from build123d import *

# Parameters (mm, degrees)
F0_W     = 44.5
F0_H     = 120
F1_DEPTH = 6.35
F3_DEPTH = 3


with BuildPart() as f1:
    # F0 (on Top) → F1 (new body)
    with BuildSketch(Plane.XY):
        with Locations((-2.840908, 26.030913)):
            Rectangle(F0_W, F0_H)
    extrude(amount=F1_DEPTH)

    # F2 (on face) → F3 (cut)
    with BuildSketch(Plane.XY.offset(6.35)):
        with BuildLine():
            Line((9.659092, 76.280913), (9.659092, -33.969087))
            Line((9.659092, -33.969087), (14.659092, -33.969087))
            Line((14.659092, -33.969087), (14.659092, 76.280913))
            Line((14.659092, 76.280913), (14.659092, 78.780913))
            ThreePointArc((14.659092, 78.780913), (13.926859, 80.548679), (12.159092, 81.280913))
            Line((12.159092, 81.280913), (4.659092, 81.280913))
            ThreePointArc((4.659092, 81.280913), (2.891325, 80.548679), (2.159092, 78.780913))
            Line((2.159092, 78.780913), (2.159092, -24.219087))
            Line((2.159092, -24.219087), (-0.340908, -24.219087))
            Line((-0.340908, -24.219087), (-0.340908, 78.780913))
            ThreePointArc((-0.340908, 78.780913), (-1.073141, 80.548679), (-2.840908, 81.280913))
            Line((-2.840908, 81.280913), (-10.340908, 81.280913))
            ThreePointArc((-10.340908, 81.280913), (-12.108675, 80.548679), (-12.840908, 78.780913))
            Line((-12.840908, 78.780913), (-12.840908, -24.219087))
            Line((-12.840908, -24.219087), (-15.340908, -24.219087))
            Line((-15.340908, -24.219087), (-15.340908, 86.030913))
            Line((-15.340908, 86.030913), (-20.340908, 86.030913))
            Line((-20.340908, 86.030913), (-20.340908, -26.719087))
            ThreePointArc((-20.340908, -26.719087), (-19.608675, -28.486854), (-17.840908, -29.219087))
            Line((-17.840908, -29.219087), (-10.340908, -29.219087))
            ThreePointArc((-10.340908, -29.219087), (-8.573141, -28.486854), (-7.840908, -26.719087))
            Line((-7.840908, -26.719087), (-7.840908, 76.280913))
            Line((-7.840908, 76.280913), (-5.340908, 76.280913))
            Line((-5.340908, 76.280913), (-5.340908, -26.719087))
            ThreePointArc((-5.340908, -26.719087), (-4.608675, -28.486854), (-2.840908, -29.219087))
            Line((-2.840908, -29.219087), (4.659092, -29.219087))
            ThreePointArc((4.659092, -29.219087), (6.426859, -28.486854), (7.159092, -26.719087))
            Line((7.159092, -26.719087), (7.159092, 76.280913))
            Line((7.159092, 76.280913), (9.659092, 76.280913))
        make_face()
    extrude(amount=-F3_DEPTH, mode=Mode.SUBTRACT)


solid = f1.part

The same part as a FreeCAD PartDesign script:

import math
import FreeCAD as App
import Part
import Sketcher
from FreeCAD import Vector
Q = App.Units.Quantity


def add_polygon(sketch, points):
    """Adds a closed chain of lines whose ends are joined by coincident constraints."""
    first, n = sketch.GeometryCount, len(points)
    for a, b in zip(points, points[1:] + points[:1]):
        sketch.addGeometry(Part.LineSegment(App.Vector(*a, 0), App.Vector(*b, 0)), False)
    for i in range(n):
        sketch.addConstraint(Sketcher.Constraint("Coincident", first + i, 2, first + (i + 1) % n, 1))

doc = App.newDocument("Part")
body = doc.addObject("PartDesign::Body", "Body")

sketch1 = doc.addObject("Sketcher::SketchObject", "Sketch")
body.addObject(sketch1)
sketch1.AttachmentSupport = (doc.XY_Plane, [""])
sketch1.MapMode = "FlatFace"
add_polygon(sketch1, [(-25.090908, 86.030913), (-25.090908, -33.969087), (19.409092, -33.969087), (19.409092, 86.030913)])
sketch1.addConstraint([
    Sketcher.Constraint("Vertical", 0),
    Sketcher.Constraint("Horizontal", 1),
    Sketcher.Constraint("Vertical", 2),
    Sketcher.Constraint("Horizontal", 3),
    Sketcher.Constraint("DistanceY", 0, 2, 0, 1, Q("120 mm")),
    Sketcher.Constraint("DistanceX", 1, 1, 1, 2, Q("44.5 mm")),
    Sketcher.Constraint("DistanceX", 0, 2, -1, 1, Q("25.090908 mm")),
    Sketcher.Constraint("DistanceY", 0, 2, -1, 1, Q("33.969087 mm")),
])
pad1 = doc.addObject("PartDesign::Pad", "Pad")
body.addObject(pad1)
pad1.Profile = sketch1
pad1.Length = 6.35

sketch2 = doc.addObject("Sketcher::SketchObject", "Sketch001")
body.addObject(sketch2)
sketch2.AttachmentSupport = (doc.XY_Plane, [""])
sketch2.MapMode = "FlatFace"
sketch2.AttachmentOffset = App.Placement(Vector(0, 0, 6.35), App.Rotation())
sketch2.addGeometry([
    Part.LineSegment(Vector(9.659092, 76.280913, 0), Vector(9.659092, -33.969087, 0)),
    Part.LineSegment(Vector(9.659092, -33.969087, 0), Vector(14.659092, -33.969087, 0)),
    Part.LineSegment(Vector(14.659092, -33.969087, 0), Vector(14.659092, 78.780913, 0)),
    Part.ArcOfCircle(Part.Circle(Vector(12.15909, 78.780911, 0), Vector(0, 0, 1), 2.500002), math.radians(0.000035), math.radians(89.999965)),
    Part.LineSegment(Vector(12.159092, 81.280913, 0), Vector(4.659092, 81.280913, 0)),
    Part.ArcOfCircle(Part.Circle(Vector(4.659094, 78.780911, 0), Vector(0, 0, 1), 2.500002), math.radians(90.000035), math.radians(179.999965)),
    Part.LineSegment(Vector(2.159092, 78.780913, 0), Vector(2.159092, -24.219087, 0)),
    Part.LineSegment(Vector(2.159092, -24.219087, 0), Vector(-0.340908, -24.219087, 0)),
    Part.LineSegment(Vector(-0.340908, -24.219087, 0), Vector(-0.340908, 78.780913, 0)),
    Part.ArcOfCircle(Part.Circle(Vector(-2.84091, 78.780911, 0), Vector(0, 0, 1), 2.500002), math.radians(0.000035), math.radians(89.999965)),
    Part.LineSegment(Vector(-2.840908, 81.280913, 0), Vector(-10.340908, 81.280913, 0)),
    Part.ArcOfCircle(Part.Circle(Vector(-10.340906, 78.780911, 0), Vector(0, 0, 1), 2.500002), math.radians(90.000035), math.radians(179.999965)),
    Part.LineSegment(Vector(-12.840908, 78.780913, 0), Vector(-12.840908, -24.219087, 0)),
    Part.LineSegment(Vector(-12.840908, -24.219087, 0), Vector(-15.340908, -24.219087, 0)),
    Part.LineSegment(Vector(-15.340908, -24.219087, 0), Vector(-15.340908, 86.030913, 0)),
    Part.LineSegment(Vector(-15.340908, 86.030913, 0), Vector(-20.340908, 86.030913, 0)),
    Part.LineSegment(Vector(-20.340908, 86.030913, 0), Vector(-20.340908, -26.719087, 0)),
    Part.ArcOfCircle(Part.Circle(Vector(-17.840908, -26.719087, 0), Vector(0, 0, 1), 2.5), math.radians(179.999996), math.radians(270.000004)),
    Part.LineSegment(Vector(-17.840908, -29.219087, 0), Vector(-10.340908, -29.219087, 0)),
    Part.ArcOfCircle(Part.Circle(Vector(-10.340908, -26.719087, 0), Vector(0, 0, 1), 2.5), math.radians(-90.000004), math.radians(0.000004)),
    Part.LineSegment(Vector(-7.840908, -26.719087, 0), Vector(-7.840908, 76.280913, 0)),
    Part.LineSegment(Vector(-7.840908, 76.280913, 0), Vector(-5.340908, 76.280913, 0)),
    Part.LineSegment(Vector(-5.340908, 76.280913, 0), Vector(-5.340908, -26.719087, 0)),
    Part.ArcOfCircle(Part.Circle(Vector(-2.840908, -26.719087, 0), Vector(0, 0, 1), 2.5), math.radians(179.999996), math.radians(270.000004)),
    Part.LineSegment(Vector(-2.840908, -29.219087, 0), Vector(4.659092, -29.219087, 0)),
    Part.ArcOfCircle(Part.Circle(Vector(4.659092, -26.719087, 0), Vector(0, 0, 1), 2.5), math.radians(-90.000004), math.radians(0.000004)),
    Part.LineSegment(Vector(7.159092, -26.719087, 0), Vector(7.159092, 76.280913, 0)),
    Part.LineSegment(Vector(7.159092, 76.280913, 0), Vector(9.659092, 76.280913, 0)),
], False)
sketch2.addConstraint([
    Sketcher.Constraint("Coincident", 0, 2, 1, 1),
    Sketcher.Constraint("Coincident", 1, 2, 2, 1),
    Sketcher.Constraint("Tangent", 2, 2, 3, 1),
    Sketcher.Constraint("Tangent", 3, 2, 4, 1),
    Sketcher.Constraint("Tangent", 4, 2, 5, 1),
    Sketcher.Constraint("Tangent", 5, 2, 6, 1),
    Sketcher.Constraint("Coincident", 6, 2, 7, 1),
    Sketcher.Constraint("Coincident", 7, 2, 8, 1),
    Sketcher.Constraint("Tangent", 8, 2, 9, 1),
    Sketcher.Constraint("Tangent", 9, 2, 10, 1),
    Sketcher.Constraint("Tangent", 10, 2, 11, 1),
    Sketcher.Constraint("Tangent", 11, 2, 12, 1),
    Sketcher.Constraint("Coincident", 12, 2, 13, 1),
    Sketcher.Constraint("Coincident", 13, 2, 14, 1),
    Sketcher.Constraint("Coincident", 14, 2, 15, 1),
    Sketcher.Constraint("Coincident", 15, 2, 16, 1),
    Sketcher.Constraint("Tangent", 16, 2, 17, 1),
    Sketcher.Constraint("Tangent", 17, 2, 18, 1),
    Sketcher.Constraint("Tangent", 18, 2, 19, 1),
    Sketcher.Constraint("Tangent", 19, 2, 20, 1),
    Sketcher.Constraint("Coincident", 20, 2, 21, 1),
    Sketcher.Constraint("Coincident", 21, 2, 22, 1),
    Sketcher.Constraint("Tangent", 22, 2, 23, 1),
    Sketcher.Constraint("Tangent", 23, 2, 24, 1),
    Sketcher.Constraint("Tangent", 24, 2, 25, 1),
    Sketcher.Constraint("Tangent", 25, 2, 26, 1),
    Sketcher.Constraint("Coincident", 26, 2, 27, 1),
    Sketcher.Constraint("Coincident", 27, 2, 0, 1),
    Sketcher.Constraint("Vertical", 0),
    Sketcher.Constraint("Horizontal", 1),
    Sketcher.Constraint("Vertical", 2),
    Sketcher.Constraint("Horizontal", 4),
    Sketcher.Constraint("Vertical", 6),
    Sketcher.Constraint("Horizontal", 7),
    Sketcher.Constraint("Vertical", 8),
    Sketcher.Constraint("Horizontal", 10),
    Sketcher.Constraint("Vertical", 12),
    Sketcher.Constraint("Horizontal", 13),
    Sketcher.Constraint("Vertical", 14),
    Sketcher.Constraint("Horizontal", 15),
    Sketcher.Constraint("Vertical", 16),
    Sketcher.Constraint("Horizontal", 18),
    Sketcher.Constraint("Vertical", 20),
    Sketcher.Constraint("Horizontal", 21),
    Sketcher.Constraint("Vertical", 22),
    Sketcher.Constraint("Horizontal", 24),
    Sketcher.Constraint("Vertical", 26),
    Sketcher.Constraint("Horizontal", 27),
    Sketcher.Constraint("Equal", 3, 5),
    Sketcher.Constraint("Equal", 5, 9),
    Sketcher.Constraint("Equal", 9, 11),
    Sketcher.Constraint("Equal", 11, 17),
    Sketcher.Constraint("Equal", 17, 19),
    Sketcher.Constraint("Equal", 19, 23),
    Sketcher.Constraint("Equal", 23, 25),
    Sketcher.Constraint("Horizontal", 5, 3, 9, 3),
    Sketcher.Constraint("Horizontal", 19, 3, 23, 3),
    Sketcher.Constraint("Horizontal", 7, 2, 12, 2),
    Sketcher.Constraint("Horizontal", 21, 2, 26, 2),
    Sketcher.Constraint("Vertical", 11, 3, 19, 3),
    Sketcher.Constraint("Vertical", 9, 3, 23, 3),
    Sketcher.Constraint("Vertical", 5, 3, 25, 3),
    Sketcher.Constraint("Equal", 4, 10),
    Sketcher.Constraint("Equal", 7, 13),
    Sketcher.Constraint("Equal", 1, 15),
    Sketcher.Constraint("Equal", 10, 18),
    Sketcher.Constraint("Equal", 13, 21),
    Sketcher.Constraint("Equal", 0, 14),
    Sketcher.Constraint("Equal", 2, 16),
    Sketcher.Constraint("Radius", 3, Q("2.500002 mm")),
    Sketcher.Constraint("DistanceY", 6, 2, 6, 1, Q("103 mm")),
    Sketcher.Constraint("DistanceX", 4, 2, 4, 1, Q("7.5 mm")),
    Sketcher.Constraint("DistanceY", 17, 2, 13, 2, Q("5 mm")),
    Sketcher.Constraint("DistanceY", 0, 2, 0, 1, Q("110.25 mm")),
    Sketcher.Constraint("DistanceX", -1, 1, 3, 3, Q("12.15909 mm")),
    Sketcher.Constraint("DistanceY", -1, 1, 3, 3, Q("78.780911 mm")),
])
pocket1 = doc.addObject("PartDesign::Pocket", "Pocket")
body.addObject(pocket1)
pocket1.Profile = sketch2
pocket1.Length = 3

doc.recompute()
